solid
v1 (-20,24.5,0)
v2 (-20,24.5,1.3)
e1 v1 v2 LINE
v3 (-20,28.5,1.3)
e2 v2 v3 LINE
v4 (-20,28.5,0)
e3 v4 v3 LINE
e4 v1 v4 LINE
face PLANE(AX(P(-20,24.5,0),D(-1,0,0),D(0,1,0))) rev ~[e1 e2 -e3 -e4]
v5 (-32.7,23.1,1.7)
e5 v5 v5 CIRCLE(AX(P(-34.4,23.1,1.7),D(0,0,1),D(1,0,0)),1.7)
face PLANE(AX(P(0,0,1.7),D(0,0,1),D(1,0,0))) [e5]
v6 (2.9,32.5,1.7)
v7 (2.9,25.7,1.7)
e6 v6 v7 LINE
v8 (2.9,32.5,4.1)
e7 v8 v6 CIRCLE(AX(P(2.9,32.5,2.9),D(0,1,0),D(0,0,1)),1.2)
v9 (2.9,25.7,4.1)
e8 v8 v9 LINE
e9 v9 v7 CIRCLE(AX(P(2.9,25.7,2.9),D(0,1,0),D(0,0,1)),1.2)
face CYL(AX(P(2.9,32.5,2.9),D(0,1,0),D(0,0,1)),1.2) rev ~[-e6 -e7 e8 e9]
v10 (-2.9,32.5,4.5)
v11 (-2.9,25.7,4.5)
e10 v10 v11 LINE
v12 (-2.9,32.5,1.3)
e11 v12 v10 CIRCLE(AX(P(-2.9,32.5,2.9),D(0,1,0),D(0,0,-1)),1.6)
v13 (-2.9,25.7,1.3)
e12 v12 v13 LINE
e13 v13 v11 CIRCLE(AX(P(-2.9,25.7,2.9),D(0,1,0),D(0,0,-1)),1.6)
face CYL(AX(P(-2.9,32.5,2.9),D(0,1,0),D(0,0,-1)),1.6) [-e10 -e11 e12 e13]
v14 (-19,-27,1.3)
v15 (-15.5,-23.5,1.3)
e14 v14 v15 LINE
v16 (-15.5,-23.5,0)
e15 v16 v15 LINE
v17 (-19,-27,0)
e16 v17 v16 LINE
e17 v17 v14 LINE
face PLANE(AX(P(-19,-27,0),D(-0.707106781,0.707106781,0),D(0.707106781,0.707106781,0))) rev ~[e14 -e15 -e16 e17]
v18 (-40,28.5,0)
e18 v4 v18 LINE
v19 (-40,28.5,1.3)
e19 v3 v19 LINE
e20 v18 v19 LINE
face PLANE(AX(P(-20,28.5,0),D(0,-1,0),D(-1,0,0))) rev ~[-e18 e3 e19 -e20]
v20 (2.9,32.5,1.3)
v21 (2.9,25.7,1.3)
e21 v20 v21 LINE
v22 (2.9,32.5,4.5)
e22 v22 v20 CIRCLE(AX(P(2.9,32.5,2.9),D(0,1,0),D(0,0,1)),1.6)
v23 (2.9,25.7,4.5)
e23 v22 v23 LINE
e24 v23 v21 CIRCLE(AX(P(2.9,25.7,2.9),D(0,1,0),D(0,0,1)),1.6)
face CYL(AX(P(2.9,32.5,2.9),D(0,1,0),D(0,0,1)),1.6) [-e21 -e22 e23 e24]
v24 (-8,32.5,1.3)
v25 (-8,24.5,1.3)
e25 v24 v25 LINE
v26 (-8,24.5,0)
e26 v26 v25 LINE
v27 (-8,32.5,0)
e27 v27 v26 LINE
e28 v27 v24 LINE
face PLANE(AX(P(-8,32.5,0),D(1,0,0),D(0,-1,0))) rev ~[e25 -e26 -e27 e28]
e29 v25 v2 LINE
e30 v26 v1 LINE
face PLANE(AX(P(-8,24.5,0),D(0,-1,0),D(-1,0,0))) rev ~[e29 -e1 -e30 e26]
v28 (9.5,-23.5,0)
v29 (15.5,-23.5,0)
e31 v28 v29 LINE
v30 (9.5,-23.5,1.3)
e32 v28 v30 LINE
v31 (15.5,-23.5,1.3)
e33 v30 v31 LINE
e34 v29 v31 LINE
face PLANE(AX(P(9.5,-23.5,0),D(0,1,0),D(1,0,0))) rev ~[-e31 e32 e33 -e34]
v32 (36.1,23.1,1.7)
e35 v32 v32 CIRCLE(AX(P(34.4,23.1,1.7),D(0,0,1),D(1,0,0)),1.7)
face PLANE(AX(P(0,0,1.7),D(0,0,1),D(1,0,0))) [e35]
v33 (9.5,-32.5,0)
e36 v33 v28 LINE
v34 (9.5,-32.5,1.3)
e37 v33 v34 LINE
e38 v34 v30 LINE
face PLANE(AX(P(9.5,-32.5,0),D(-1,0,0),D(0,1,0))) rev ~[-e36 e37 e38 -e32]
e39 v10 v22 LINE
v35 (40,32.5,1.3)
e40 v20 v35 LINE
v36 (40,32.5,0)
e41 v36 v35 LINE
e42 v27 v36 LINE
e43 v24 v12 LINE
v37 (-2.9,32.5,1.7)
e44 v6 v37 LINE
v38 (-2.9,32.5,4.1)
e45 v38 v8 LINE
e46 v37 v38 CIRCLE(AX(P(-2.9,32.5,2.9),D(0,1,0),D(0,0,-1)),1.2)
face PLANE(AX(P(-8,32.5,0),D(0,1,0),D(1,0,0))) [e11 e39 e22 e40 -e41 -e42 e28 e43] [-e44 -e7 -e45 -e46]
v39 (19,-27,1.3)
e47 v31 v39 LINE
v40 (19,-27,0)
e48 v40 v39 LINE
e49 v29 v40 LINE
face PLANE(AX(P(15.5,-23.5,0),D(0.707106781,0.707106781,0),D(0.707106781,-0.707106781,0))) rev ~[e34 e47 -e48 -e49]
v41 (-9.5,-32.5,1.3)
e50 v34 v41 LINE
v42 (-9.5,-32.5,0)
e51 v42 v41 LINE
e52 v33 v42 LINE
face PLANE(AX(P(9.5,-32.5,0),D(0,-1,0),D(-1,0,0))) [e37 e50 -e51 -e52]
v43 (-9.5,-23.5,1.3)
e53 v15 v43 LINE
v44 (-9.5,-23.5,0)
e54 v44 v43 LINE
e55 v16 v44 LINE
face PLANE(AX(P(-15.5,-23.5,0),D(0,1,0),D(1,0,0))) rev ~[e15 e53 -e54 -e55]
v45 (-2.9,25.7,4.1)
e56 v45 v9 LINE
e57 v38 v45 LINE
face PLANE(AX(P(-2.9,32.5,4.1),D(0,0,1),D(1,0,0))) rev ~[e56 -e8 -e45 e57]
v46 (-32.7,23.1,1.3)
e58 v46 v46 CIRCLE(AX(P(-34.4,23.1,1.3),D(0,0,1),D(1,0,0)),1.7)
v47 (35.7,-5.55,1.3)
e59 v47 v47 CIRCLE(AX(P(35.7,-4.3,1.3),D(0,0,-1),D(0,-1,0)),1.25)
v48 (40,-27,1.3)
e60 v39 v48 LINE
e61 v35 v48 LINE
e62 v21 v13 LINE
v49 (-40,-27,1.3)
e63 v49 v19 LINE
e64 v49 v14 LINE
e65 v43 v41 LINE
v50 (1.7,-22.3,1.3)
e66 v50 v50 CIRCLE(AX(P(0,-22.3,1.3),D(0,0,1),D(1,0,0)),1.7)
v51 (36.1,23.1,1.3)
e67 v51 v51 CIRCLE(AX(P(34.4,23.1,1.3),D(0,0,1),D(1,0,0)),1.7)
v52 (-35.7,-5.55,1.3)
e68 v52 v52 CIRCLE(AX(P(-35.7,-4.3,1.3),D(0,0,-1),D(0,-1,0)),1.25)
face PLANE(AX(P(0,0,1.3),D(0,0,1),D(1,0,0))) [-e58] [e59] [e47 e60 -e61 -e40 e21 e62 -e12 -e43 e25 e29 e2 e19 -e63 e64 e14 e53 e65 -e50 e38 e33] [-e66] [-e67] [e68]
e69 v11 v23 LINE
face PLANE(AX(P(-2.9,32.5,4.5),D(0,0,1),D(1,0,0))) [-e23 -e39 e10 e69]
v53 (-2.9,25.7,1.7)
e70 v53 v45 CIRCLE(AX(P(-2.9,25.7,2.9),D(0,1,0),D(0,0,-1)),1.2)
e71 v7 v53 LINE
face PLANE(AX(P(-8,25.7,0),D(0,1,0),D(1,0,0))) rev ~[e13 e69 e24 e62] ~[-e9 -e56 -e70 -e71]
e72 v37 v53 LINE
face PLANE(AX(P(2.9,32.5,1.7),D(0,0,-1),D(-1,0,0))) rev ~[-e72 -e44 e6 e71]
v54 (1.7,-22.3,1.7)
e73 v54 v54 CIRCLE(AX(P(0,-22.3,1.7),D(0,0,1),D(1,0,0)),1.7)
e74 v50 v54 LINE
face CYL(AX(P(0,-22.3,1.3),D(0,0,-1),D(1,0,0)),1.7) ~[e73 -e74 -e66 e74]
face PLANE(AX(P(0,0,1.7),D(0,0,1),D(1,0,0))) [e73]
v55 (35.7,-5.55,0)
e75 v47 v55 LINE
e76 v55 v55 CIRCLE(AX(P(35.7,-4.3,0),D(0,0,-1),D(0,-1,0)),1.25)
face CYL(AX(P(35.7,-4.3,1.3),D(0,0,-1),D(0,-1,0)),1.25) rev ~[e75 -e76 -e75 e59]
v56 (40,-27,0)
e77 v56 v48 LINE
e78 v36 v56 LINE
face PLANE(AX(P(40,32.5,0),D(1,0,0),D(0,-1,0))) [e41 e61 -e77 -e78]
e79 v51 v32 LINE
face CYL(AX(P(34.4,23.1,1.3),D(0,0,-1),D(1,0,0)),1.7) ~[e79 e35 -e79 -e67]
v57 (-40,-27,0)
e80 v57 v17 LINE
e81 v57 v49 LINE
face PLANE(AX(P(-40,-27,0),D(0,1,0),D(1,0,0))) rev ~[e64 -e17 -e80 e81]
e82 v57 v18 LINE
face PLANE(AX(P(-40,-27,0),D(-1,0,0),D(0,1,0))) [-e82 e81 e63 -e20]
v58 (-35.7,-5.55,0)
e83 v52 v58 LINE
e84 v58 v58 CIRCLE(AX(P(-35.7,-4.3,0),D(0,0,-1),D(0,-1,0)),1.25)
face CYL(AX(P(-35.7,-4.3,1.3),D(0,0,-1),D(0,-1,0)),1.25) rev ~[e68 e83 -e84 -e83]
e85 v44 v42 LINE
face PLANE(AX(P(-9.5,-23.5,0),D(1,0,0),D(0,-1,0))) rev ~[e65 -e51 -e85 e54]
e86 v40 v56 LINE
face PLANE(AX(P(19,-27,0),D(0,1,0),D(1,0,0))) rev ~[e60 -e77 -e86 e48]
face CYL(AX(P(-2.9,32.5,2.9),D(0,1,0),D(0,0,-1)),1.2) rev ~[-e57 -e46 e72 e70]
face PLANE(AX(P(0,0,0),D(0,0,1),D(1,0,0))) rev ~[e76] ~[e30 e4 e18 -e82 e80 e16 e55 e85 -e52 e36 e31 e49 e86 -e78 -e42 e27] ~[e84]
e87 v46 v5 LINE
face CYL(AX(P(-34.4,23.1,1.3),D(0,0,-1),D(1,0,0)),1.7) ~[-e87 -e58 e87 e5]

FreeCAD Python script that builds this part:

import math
import FreeCAD as App
import Part
import Sketcher
from FreeCAD import Vector
Q = App.Units.Quantity


def add_polygon(sketch, points):
    """Adds a closed chain of lines whose ends are joined by coincident constraints."""
    first, n = sketch.GeometryCount, len(points)
    for a, b in zip(points, points[1:] + points[:1]):
        sketch.addGeometry(Part.LineSegment(App.Vector(*a, 0), App.Vector(*b, 0)), False)
    for i in range(n):
        sketch.addConstraint(Sketcher.Constraint("Coincident", first + i, 2, first + (i + 1) % n, 1))

doc = App.newDocument("Part")
params = doc.addObject("Spreadsheet::Sheet", "Params")
for row, (alias, value) in enumerate([
    ("sketch1_width", "12 mm"),
    ("sketch1_width2", "6 mm"),
    ("sketch1_width3", "19 mm"),
    ("sketch1_height", "8 mm"),
    ("sketch1_height2", "4 mm"),
    ("pad1_length", "1.3 mm"),
    ("sketch2_diameter", "2.5 mm"),
    ("hole_diameter", "2.5 mm"),
    ("sketch3_radius", "1.6 mm"),
    ("sketch3_radius2", "1.2 mm"),
    ("sketch3_width", "5.8 mm"),
    ("pad2_length", "6.8 mm"),
    ("sketch4_diameter", "3.4 mm"),
    ("pad3_length", "0.4 mm"),
], start=1):
    params.set(f"A{row}", alias)
    params.set(f"B{row}", "=" + value)
    params.setAlias(f"B{row}", alias)

body = doc.addObject("PartDesign::Body", "Body")

# Sketch on XY plane
sketch1 = body.newObject("Sketcher::SketchObject", "Sketch")
sketch1.AttachmentSupport = (doc.getObject("XY_Plane"), [""])
sketch1.MapMode = "FlatFace"
add_polygon(sketch1, [(40, 32.5), (-8, 32.5), (-8, 24.5), (-20, 24.5), (-20, 28.5), (-40, 28.5), (-40, -27), (-19, -27), (-15.5, -23.5), (-9.5, -23.5), (-9.5, -32.5), (9.5, -32.5), (9.5, -23.5), (15.5, -23.5), (19, -27), (40, -27)])  # lines 0-15
sketch1.addConstraint([
    Sketcher.Constraint("Horizontal", 0),
    Sketcher.Constraint("Vertical", 1),
    Sketcher.Constraint("Horizontal", 2),
    Sketcher.Constraint("Vertical", 3),
    Sketcher.Constraint("Horizontal", 4),
    Sketcher.Constraint("Vertical", 5),
    Sketcher.Constraint("Horizontal", 6),
    Sketcher.Constraint("Horizontal", 8),
    Sketcher.Constraint("Vertical", 9),
    Sketcher.Constraint("Horizontal", 10),
    Sketcher.Constraint("Vertical", 11),
    Sketcher.Constraint("Horizontal", 12),
    Sketcher.Constraint("Horizontal", 14),
    Sketcher.Constraint("Vertical", 15),
    Sketcher.Constraint("Symmetric", 8, 2, 11, 2, -2),
    Sketcher.Constraint("Symmetric", 6, 2, 13, 2, -2),
    Sketcher.Constraint("Perpendicular", 7, 13),
    Sketcher.Constraint("Equal", 8, 12),
    Sketcher.Constraint("Equal", 6, 14),
    Sketcher.Constraint("DistanceX", 2, 2, 2, 1, Q("12 mm")),
    Sketcher.Constraint("DistanceX", 8, 1, 8, 2, Q("6 mm")),
    Sketcher.Constraint("DistanceX", 10, 1, 10, 2, Q("19 mm")),
    Sketcher.Constraint("DistanceY", 1, 2, 1, 1, Q("8 mm")),
    Sketcher.Constraint("DistanceY", 3, 1, 3, 2, Q("4 mm")),
    Sketcher.Constraint("DistanceY", 9, 2, 9, 1, Q("9 mm")),
    Sketcher.Constraint("DistanceX", 0, 2, -1, 1, Q("8 mm")),
    Sketcher.Constraint("DistanceX", 6, 2, -1, 1, Q("19 mm")),
    Sketcher.Constraint("DistanceX", 0, 2, 0, 1, Q("48 mm")),
    Sketcher.Constraint("DistanceY", 5, 2, 5, 1, Q("55.5 mm")),
    Sketcher.Constraint("DistanceY", 5, 2, -1, 1, Q("27 mm")),
])
sketch1.setExpression("Constraints[35]", "Params.sketch1_width")
sketch1.setExpression("Constraints[36]", "Params.sketch1_width2")
sketch1.setExpression("Constraints[37]", "Params.sketch1_width3")
sketch1.setExpression("Constraints[38]", "Params.sketch1_height")
sketch1.setExpression("Constraints[39]", "Params.sketch1_height2")
pad1 = body.newObject("PartDesign::Pad", "Pad")
pad1.Profile = sketch1
pad1.setExpression("Length", "Params.pad1_length")

# Sketch on XY plane
sketch2 = body.newObject("Sketcher::SketchObject", "Sketch001")
sketch2.AttachmentSupport = (doc.getObject("XY_Plane"), [""])
sketch2.MapMode = "FlatFace"
sketch2.AttachmentOffset = App.Placement(Vector(0, 0, 1.3), App.Rotation())
sketch2.addGeometry([
    Part.Circle(Vector(-35.7, -4.3, 0), Vector(0, 0, 1), 1.2),
    Part.Circle(Vector(35.7, -4.3, 0), Vector(0, 0, 1), 1.2),
], False)
sketch2.addConstraint([
    Sketcher.Constraint("Equal", 0, 1),
    Sketcher.Constraint("Symmetric", 0, 3, 1, 3, -2),
    Sketcher.Constraint("Diameter", 0, Q("2.5 mm")),
    Sketcher.Constraint("DistanceX", 0, 3, -1, 1, Q("35.7 mm")),
    Sketcher.Constraint("DistanceY", 0, 3, -1, 1, Q("4.3 mm")),
])
sketch2.setExpression("Constraints[2]", "Params.sketch2_diameter")
doc.recompute()
hole = body.newObject("PartDesign::Hole", "Hole")
hole.Profile = sketch2
hole.ThreadType = "None"
hole.setExpression("Diameter", "Params.hole_diameter")
hole.DepthType = "ThroughAll"

# Sketch on XZ plane
sketch3 = body.newObject("Sketcher::SketchObject", "Sketch002")
sketch3.AttachmentSupport = (doc.getObject("XZ_Plane"), [""])
sketch3.MapMode = "FlatFace"
sketch3.AttachmentOffset = App.Placement(Vector(0, 0, -32.5), App.Rotation())
sketch3.addGeometry([
    Part.ArcOfCircle(Part.Circle(Vector(2.9, 2.9, 0), Vector(0, 0, 1), 1.6), math.radians(-90), math.radians(90)),  # 0
    Part.LineSegment(Vector(2.9, 1.3, 0), Vector(-2.9, 1.3, 0)),  # 1
    Part.ArcOfCircle(Part.Circle(Vector(-2.9, 2.9, 0), Vector(0, 0, 1), 1.6), math.radians(90), math.radians(270)),  # 2
    Part.LineSegment(Vector(-2.9, 4.5, 0), Vector(2.9, 4.5, 0)),  # 3
    Part.LineSegment(Vector(-2.9, 1.7, 0), Vector(2.9, 1.7, 0)),  # 4
    Part.ArcOfCircle(Part.Circle(Vector(2.9, 2.9, 0), Vector(0, 0, 1), 1.2), math.radians(-90), math.radians(90)),  # 5
    Part.LineSegment(Vector(2.9, 4.1, 0), Vector(-2.9, 4.1, 0)),  # 6
    Part.ArcOfCircle(Part.Circle(Vector(-2.9, 2.9, 0), Vector(0, 0, 1), 1.2), math.radians(90), math.radians(270)),  # 7
], False)
sketch3.addConstraint([
    Sketcher.Constraint("Tangent", 0, 1, 1, 1),
    Sketcher.Constraint("Tangent", 1, 2, 2, 2),
    Sketcher.Constraint("Tangent", 2, 1, 3, 1),
    Sketcher.Constraint("Tangent", 3, 2, 0, 2),
    Sketcher.Constraint("Tangent", 4, 2, 5, 1),
    Sketcher.Constraint("Tangent", 5, 2, 6, 1),
    Sketcher.Constraint("Tangent", 6, 2, 7, 1),
    Sketcher.Constraint("Tangent", 7, 2, 4, 1),
    Sketcher.Constraint("Horizontal", 1),
    Sketcher.Constraint("Horizontal", 3),
    Sketcher.Constraint("Horizontal", 4),
    Sketcher.Constraint("Horizontal", 6),
    Sketcher.Constraint("Coincident", 5, 3, 0, 3),
    Sketcher.Constraint("Vertical", 7, 3, 1, 2),
    Sketcher.Constraint("Radius", 0, Q("1.6 mm")),
    Sketcher.Constraint("Radius", 5, Q("1.2 mm")),
    Sketcher.Constraint("DistanceX", 1, 2, 1, 1, Q("5.8 mm")),
    Sketcher.Constraint("DistanceX", -1, 1, 0, 3, Q("2.9 mm")),
    Sketcher.Constraint("DistanceY", -1, 1, 0, 3, Q("2.9 mm")),
])
sketch3.setExpression("Constraints[14]", "Params.sketch3_radius")
sketch3.setExpression("Constraints[15]", "Params.sketch3_radius2")
sketch3.setExpression("Constraints[16]", "Params.sketch3_width")
pad2 = body.newObject("PartDesign::Pad", "Pad001")
pad2.Profile = sketch3
pad2.setExpression("Length", "Params.pad2_length")

# Sketch on XY plane
sketch4 = body.newObject("Sketcher::SketchObject", "Sketch003")
sketch4.AttachmentSupport = (doc.getObject("XY_Plane"), [""])
sketch4.MapMode = "FlatFace"
sketch4.AttachmentOffset = App.Placement(Vector(0, 0, 1.3), App.Rotation())
sketch4.addGeometry([
    Part.Circle(Vector(-34.4, 23.1, 0), Vector(0, 0, 1), 1.7),
    Part.Circle(Vector(34.4, 23.1, 0), Vector(0, 0, 1), 1.7),
    Part.Circle(Vector(0, -22.3, 0), Vector(0, 0, 1), 1.7),
], False)
sketch4.addConstraint([
    Sketcher.Constraint("Equal", 0, 1),
    Sketcher.Constraint("Equal", 1, 2),
    Sketcher.Constraint("Symmetric", 0, 3, 1, 3, -2),
    Sketcher.Constraint("PointOnObject", 2, 3, -2),
    Sketcher.Constraint("Diameter", 0, Q("3.4 mm")),
    Sketcher.Constraint("DistanceX", 0, 3, 1, 3, Q("68.8 mm")),
    Sketcher.Constraint("DistanceY", -1, 1, 0, 3, Q("23.1 mm")),
    Sketcher.Constraint("DistanceY", 2, 3, -1, 1, Q("22.3 mm")),
])
sketch4.setExpression("Constraints[4]", "Params.sketch4_diameter")
pad3 = body.newObject("PartDesign::Pad", "Pad002")
pad3.Profile = sketch4
pad3.setExpression("Length", "Params.pad3_length")

doc.recompute()
